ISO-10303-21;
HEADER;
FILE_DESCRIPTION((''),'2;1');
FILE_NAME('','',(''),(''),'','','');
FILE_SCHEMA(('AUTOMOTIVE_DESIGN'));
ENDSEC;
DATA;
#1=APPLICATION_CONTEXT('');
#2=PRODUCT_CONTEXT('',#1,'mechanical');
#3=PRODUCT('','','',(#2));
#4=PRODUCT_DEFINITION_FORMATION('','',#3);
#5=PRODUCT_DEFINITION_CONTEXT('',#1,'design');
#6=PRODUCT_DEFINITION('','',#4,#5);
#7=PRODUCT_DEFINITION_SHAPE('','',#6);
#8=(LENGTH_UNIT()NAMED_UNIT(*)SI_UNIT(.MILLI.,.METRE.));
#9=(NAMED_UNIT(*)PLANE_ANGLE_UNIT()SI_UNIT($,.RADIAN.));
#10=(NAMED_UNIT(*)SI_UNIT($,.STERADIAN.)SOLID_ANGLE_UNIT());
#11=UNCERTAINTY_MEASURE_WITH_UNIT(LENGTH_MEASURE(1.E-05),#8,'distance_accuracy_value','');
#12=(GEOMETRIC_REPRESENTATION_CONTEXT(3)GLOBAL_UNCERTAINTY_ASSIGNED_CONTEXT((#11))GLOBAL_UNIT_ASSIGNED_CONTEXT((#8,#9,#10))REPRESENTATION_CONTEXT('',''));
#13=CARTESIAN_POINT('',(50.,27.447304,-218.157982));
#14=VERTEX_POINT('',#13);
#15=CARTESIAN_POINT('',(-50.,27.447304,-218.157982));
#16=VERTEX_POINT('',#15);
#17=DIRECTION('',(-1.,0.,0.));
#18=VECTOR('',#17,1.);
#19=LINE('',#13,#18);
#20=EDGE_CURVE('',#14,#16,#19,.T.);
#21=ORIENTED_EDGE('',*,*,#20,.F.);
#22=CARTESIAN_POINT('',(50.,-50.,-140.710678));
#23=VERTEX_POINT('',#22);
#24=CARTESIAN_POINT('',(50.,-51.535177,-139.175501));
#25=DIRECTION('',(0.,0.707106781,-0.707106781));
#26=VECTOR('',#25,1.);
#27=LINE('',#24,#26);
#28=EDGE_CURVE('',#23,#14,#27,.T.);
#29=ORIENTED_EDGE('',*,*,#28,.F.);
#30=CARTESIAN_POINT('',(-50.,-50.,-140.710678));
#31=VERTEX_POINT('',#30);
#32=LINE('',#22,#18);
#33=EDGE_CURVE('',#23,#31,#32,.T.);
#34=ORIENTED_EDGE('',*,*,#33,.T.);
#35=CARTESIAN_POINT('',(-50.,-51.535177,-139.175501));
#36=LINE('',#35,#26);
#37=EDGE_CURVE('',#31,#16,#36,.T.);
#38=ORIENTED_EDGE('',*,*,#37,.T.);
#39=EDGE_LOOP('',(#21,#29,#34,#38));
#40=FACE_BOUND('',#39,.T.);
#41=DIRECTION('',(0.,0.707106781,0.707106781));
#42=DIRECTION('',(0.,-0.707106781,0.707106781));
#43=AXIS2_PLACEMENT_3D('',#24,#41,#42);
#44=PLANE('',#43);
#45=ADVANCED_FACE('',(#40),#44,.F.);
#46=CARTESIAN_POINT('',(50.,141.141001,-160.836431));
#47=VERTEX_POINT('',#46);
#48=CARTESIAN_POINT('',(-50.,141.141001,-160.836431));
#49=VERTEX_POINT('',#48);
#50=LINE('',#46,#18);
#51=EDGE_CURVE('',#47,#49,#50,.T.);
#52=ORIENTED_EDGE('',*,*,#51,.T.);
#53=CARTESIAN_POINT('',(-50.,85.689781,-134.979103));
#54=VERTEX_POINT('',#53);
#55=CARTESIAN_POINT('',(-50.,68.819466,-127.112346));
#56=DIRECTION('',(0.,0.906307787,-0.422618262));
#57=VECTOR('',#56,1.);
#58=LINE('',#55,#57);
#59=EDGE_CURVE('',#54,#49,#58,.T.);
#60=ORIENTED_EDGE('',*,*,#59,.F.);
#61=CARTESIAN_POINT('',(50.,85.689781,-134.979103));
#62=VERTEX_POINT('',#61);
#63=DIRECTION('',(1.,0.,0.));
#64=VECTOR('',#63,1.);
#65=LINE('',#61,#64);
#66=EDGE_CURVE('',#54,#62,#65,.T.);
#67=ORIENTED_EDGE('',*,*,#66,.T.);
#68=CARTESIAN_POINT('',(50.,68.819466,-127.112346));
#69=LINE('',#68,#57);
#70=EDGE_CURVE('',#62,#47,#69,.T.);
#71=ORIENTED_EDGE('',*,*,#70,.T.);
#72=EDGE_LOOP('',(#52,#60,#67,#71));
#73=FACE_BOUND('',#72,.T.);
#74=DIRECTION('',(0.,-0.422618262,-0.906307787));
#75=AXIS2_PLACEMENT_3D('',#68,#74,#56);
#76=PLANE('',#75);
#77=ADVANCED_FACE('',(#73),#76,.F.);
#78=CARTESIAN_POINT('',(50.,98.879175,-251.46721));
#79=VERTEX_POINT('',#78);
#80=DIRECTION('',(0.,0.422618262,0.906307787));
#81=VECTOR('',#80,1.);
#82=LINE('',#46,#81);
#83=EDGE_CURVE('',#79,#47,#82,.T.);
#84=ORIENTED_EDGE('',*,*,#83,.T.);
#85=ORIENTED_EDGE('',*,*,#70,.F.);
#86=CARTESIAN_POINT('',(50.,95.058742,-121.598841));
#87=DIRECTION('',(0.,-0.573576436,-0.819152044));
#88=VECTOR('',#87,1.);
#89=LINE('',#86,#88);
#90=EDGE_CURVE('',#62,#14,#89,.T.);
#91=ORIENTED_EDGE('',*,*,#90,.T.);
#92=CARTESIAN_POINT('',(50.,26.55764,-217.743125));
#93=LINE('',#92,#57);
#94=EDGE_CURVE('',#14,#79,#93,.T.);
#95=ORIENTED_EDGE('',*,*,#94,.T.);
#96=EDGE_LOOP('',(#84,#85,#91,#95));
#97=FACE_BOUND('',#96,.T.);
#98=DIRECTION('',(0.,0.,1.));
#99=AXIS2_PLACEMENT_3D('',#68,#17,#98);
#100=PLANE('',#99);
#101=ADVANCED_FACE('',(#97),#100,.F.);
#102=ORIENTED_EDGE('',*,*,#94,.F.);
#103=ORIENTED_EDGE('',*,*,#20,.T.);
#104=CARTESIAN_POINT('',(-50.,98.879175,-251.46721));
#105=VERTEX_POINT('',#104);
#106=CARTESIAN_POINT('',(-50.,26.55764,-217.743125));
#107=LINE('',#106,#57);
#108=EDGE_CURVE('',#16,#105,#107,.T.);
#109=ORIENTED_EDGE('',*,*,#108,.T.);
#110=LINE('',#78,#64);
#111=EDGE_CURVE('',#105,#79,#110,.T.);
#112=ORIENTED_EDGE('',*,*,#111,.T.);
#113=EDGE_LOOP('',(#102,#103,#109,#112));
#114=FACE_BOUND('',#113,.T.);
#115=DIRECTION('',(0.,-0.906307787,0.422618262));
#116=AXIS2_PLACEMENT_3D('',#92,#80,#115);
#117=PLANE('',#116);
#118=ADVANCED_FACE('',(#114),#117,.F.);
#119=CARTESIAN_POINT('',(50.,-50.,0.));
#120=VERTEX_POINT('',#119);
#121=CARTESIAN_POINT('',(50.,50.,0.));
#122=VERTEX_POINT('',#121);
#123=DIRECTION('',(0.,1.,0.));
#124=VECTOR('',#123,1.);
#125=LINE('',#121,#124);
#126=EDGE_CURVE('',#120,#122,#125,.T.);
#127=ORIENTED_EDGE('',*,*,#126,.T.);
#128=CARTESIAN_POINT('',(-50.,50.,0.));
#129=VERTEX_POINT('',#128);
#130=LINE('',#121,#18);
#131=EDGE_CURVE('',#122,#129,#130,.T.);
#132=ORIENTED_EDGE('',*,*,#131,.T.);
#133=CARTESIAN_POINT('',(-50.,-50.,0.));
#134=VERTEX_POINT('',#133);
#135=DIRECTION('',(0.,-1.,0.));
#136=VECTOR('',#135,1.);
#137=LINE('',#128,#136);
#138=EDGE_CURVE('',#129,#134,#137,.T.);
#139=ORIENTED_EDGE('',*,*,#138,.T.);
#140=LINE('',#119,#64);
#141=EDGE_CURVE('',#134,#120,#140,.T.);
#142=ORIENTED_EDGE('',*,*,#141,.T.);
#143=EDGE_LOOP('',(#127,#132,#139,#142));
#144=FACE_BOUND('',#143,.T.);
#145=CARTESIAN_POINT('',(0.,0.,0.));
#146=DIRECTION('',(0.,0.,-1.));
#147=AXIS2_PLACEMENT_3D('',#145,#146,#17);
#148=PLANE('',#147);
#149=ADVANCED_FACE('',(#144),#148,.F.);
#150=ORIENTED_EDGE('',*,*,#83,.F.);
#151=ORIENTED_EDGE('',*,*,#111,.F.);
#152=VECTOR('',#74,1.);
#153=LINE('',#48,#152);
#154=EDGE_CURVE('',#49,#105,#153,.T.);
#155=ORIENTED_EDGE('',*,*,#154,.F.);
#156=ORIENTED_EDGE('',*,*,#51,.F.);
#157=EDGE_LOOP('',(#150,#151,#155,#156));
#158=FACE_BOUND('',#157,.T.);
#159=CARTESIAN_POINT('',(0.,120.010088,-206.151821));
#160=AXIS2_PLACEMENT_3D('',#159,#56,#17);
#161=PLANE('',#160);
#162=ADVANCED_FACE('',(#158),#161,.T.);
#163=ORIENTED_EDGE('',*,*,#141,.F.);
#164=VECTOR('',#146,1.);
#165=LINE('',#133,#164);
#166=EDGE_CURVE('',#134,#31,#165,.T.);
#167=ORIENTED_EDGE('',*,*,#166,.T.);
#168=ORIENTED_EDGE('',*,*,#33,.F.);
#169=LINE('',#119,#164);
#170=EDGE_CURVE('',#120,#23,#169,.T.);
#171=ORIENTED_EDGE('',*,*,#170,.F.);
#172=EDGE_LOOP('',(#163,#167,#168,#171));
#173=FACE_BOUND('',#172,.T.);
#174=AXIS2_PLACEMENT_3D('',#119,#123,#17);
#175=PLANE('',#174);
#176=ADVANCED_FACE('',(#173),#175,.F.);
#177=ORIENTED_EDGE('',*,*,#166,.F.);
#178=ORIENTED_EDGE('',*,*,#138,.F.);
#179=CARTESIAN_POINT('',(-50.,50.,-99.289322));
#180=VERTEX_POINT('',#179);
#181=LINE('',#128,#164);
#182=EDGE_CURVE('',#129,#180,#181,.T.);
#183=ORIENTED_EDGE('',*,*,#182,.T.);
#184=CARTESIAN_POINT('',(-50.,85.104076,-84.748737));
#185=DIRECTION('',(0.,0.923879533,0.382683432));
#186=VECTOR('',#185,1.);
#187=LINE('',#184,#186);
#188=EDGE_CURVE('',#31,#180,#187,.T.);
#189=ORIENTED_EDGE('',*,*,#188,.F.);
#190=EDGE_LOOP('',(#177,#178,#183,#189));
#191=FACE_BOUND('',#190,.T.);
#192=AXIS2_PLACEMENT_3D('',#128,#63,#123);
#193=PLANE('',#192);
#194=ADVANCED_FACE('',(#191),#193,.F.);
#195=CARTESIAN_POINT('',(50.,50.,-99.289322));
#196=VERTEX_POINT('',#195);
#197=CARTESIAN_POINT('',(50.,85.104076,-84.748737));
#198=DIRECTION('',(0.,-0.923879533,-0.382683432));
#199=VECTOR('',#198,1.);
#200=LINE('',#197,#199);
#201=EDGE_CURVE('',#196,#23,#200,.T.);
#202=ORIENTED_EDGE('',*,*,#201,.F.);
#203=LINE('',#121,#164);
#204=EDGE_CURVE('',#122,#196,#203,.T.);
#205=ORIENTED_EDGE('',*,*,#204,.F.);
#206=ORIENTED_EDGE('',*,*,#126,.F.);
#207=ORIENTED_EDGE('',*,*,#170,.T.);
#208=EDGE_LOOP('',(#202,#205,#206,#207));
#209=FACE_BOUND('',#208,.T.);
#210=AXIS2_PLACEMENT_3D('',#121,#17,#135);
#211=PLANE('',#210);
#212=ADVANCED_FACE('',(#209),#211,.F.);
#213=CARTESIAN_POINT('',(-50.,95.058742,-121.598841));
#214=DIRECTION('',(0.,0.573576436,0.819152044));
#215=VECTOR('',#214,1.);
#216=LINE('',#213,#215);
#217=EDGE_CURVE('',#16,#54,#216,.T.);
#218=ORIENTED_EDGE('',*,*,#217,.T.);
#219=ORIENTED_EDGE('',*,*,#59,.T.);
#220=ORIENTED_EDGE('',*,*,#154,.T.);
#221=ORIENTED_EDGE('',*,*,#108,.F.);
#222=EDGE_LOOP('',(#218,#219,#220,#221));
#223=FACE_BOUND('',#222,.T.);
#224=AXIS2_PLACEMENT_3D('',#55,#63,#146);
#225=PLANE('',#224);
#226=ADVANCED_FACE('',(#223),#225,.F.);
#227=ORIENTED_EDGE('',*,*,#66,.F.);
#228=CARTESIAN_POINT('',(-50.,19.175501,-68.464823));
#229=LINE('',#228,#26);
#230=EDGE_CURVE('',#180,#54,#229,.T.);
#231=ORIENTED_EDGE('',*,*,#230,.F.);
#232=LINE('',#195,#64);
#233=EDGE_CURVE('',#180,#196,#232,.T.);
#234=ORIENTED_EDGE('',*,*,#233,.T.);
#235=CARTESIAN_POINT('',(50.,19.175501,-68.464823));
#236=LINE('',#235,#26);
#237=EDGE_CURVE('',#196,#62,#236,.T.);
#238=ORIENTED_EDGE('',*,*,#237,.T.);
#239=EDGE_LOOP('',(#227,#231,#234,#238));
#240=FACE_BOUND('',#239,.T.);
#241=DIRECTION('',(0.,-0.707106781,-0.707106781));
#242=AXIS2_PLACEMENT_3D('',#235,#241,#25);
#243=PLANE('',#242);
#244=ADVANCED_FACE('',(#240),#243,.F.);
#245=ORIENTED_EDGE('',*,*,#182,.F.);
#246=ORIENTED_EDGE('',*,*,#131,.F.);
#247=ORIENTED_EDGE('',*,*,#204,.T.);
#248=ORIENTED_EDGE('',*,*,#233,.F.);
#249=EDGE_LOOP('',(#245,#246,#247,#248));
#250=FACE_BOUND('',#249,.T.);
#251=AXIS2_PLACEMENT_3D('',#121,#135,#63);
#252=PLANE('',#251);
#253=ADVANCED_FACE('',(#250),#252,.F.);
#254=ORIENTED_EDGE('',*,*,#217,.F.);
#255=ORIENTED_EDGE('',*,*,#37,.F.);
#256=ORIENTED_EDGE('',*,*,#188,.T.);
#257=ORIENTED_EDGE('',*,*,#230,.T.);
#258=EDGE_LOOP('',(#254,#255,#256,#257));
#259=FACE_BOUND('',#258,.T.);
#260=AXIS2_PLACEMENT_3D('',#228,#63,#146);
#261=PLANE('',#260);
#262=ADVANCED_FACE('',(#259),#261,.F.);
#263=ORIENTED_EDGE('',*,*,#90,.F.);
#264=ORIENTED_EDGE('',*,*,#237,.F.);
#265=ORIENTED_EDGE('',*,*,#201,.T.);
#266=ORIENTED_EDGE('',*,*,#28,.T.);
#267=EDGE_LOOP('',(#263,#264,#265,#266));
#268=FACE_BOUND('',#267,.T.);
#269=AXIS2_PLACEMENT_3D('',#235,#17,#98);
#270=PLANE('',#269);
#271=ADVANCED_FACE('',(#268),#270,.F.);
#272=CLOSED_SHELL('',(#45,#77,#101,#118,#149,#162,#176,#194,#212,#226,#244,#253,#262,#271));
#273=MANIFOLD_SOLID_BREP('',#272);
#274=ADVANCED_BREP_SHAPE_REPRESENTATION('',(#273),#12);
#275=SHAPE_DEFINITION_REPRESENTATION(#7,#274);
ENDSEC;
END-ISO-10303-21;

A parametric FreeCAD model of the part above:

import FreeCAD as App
import Part
import Sketcher

V = App.Vector
Q = App.Units.Quantity


def add_polygon(sketch, points):
    """Adds a closed chain of lines whose ends are joined by coincident constraints."""
    first, n = sketch.GeometryCount, len(points)
    for a, b in zip(points, points[1:] + points[:1]):
        sketch.addGeometry(Part.LineSegment(App.Vector(*a, 0), App.Vector(*b, 0)), False)
    for i in range(n):
        sketch.addConstraint(Sketcher.Constraint("Coincident", first + i, 2, first + (i + 1) % n, 1))

doc = App.newDocument("Part")
params = doc.addObject("Spreadsheet::Sheet", "Params")
for row, (alias, value) in enumerate([
    ("sketch1_width", "100 mm"),
    ("sketch2_height", "120 mm"),
    ("sketch2_length", "80 mm"),
    ("sketch2_length2", "70 mm"),
], start=1):
    params.set(f"A{row}", alias)
    params.set(f"B{row}", "=" + value)
    params.setAlias(f"B{row}", alias)

body = doc.addObject("PartDesign::Body", "Body")

# Sketch on XY plane
sketch1 = doc.addObject("Sketcher::SketchObject", "Sketch")
body.addObject(sketch1)
sketch1.AttachmentSupport = (doc.XY_Plane, [""])
sketch1.MapMode = "FlatFace"
add_polygon(sketch1, [(-50, 50), (-50, -50), (50, -50), (50, 50)])  # lines 0-3
sketch1.addConstraint(Sketcher.Constraint("Vertical", 0))
sketch1.addConstraint(Sketcher.Constraint("Horizontal", 1))
sketch1.addConstraint(Sketcher.Constraint("Vertical", 2))
sketch1.addConstraint(Sketcher.Constraint("Horizontal", 3))
sketch1.addConstraint(Sketcher.Constraint("Symmetric", 0, 2, 2, 2, -1, 1))
sketch1.addConstraint(Sketcher.Constraint("Equal", 3, 0))
sketch1.addConstraint(Sketcher.Constraint("DistanceX", 1, 1, 1, 2, Q("100 mm")))
sketch1.setExpression("Constraints[10]", "Params.sketch1_width")

# Sketch on YZ plane
sketch2 = doc.addObject("Sketcher::SketchObject", "Sketch001")
body.addObject(sketch2)
sketch2.AttachmentSupport = (doc.YZ_Plane, [""])
sketch2.MapMode = "FlatFace"
sketch2.addGeometry(Part.LineSegment(V(0, 0, 0), V(0, -120, 0)), False)
sketch2.addGeometry(Part.LineSegment(V(0, -120, 0), V(56.568542, -176.568542, 0)), False)
sketch2.addGeometry(Part.LineSegment(V(56.568542, -176.568542, 0), V(120.010088, -206.151821, 0)), False)
sketch2.addConstraint(Sketcher.Constraint("Coincident", 0, 2, 1, 1))
sketch2.addConstraint(Sketcher.Constraint("Coincident", 1, 2, 2, 1))
sketch2.addConstraint(Sketcher.Constraint("Vertical", 0))
sketch2.addConstraint(Sketcher.Constraint("Coincident", 0, 1, -1, 1))
sketch2.addConstraint(Sketcher.Constraint("DistanceY", 0, 2, 0, 1, Q("120 mm")))
sketch2.addConstraint(Sketcher.Constraint("Angle", 1, Q("-45 deg")))
sketch2.addConstraint(Sketcher.Constraint("Angle", 2, Q("-25 deg")))
sketch2.addConstraint(Sketcher.Constraint("Distance", 1, Q("80 mm")))
sketch2.addConstraint(Sketcher.Constraint("Distance", 2, Q("70 mm")))
sketch2.setExpression("Constraints[4]", "Params.sketch2_height")
sketch2.setExpression("Constraints[7]", "Params.sketch2_length")
sketch2.setExpression("Constraints[8]", "Params.sketch2_length2")
doc.recompute()

additivepipe = doc.addObject("PartDesign::AdditivePipe", "AdditivePipe")
body.addObject(additivepipe)
additivepipe.Profile = sketch1
additivepipe.Spine = (sketch2, ["Edge1", "Edge2", "Edge3"])
additivepipe.Transition = "Right corner"

doc.recompute()
